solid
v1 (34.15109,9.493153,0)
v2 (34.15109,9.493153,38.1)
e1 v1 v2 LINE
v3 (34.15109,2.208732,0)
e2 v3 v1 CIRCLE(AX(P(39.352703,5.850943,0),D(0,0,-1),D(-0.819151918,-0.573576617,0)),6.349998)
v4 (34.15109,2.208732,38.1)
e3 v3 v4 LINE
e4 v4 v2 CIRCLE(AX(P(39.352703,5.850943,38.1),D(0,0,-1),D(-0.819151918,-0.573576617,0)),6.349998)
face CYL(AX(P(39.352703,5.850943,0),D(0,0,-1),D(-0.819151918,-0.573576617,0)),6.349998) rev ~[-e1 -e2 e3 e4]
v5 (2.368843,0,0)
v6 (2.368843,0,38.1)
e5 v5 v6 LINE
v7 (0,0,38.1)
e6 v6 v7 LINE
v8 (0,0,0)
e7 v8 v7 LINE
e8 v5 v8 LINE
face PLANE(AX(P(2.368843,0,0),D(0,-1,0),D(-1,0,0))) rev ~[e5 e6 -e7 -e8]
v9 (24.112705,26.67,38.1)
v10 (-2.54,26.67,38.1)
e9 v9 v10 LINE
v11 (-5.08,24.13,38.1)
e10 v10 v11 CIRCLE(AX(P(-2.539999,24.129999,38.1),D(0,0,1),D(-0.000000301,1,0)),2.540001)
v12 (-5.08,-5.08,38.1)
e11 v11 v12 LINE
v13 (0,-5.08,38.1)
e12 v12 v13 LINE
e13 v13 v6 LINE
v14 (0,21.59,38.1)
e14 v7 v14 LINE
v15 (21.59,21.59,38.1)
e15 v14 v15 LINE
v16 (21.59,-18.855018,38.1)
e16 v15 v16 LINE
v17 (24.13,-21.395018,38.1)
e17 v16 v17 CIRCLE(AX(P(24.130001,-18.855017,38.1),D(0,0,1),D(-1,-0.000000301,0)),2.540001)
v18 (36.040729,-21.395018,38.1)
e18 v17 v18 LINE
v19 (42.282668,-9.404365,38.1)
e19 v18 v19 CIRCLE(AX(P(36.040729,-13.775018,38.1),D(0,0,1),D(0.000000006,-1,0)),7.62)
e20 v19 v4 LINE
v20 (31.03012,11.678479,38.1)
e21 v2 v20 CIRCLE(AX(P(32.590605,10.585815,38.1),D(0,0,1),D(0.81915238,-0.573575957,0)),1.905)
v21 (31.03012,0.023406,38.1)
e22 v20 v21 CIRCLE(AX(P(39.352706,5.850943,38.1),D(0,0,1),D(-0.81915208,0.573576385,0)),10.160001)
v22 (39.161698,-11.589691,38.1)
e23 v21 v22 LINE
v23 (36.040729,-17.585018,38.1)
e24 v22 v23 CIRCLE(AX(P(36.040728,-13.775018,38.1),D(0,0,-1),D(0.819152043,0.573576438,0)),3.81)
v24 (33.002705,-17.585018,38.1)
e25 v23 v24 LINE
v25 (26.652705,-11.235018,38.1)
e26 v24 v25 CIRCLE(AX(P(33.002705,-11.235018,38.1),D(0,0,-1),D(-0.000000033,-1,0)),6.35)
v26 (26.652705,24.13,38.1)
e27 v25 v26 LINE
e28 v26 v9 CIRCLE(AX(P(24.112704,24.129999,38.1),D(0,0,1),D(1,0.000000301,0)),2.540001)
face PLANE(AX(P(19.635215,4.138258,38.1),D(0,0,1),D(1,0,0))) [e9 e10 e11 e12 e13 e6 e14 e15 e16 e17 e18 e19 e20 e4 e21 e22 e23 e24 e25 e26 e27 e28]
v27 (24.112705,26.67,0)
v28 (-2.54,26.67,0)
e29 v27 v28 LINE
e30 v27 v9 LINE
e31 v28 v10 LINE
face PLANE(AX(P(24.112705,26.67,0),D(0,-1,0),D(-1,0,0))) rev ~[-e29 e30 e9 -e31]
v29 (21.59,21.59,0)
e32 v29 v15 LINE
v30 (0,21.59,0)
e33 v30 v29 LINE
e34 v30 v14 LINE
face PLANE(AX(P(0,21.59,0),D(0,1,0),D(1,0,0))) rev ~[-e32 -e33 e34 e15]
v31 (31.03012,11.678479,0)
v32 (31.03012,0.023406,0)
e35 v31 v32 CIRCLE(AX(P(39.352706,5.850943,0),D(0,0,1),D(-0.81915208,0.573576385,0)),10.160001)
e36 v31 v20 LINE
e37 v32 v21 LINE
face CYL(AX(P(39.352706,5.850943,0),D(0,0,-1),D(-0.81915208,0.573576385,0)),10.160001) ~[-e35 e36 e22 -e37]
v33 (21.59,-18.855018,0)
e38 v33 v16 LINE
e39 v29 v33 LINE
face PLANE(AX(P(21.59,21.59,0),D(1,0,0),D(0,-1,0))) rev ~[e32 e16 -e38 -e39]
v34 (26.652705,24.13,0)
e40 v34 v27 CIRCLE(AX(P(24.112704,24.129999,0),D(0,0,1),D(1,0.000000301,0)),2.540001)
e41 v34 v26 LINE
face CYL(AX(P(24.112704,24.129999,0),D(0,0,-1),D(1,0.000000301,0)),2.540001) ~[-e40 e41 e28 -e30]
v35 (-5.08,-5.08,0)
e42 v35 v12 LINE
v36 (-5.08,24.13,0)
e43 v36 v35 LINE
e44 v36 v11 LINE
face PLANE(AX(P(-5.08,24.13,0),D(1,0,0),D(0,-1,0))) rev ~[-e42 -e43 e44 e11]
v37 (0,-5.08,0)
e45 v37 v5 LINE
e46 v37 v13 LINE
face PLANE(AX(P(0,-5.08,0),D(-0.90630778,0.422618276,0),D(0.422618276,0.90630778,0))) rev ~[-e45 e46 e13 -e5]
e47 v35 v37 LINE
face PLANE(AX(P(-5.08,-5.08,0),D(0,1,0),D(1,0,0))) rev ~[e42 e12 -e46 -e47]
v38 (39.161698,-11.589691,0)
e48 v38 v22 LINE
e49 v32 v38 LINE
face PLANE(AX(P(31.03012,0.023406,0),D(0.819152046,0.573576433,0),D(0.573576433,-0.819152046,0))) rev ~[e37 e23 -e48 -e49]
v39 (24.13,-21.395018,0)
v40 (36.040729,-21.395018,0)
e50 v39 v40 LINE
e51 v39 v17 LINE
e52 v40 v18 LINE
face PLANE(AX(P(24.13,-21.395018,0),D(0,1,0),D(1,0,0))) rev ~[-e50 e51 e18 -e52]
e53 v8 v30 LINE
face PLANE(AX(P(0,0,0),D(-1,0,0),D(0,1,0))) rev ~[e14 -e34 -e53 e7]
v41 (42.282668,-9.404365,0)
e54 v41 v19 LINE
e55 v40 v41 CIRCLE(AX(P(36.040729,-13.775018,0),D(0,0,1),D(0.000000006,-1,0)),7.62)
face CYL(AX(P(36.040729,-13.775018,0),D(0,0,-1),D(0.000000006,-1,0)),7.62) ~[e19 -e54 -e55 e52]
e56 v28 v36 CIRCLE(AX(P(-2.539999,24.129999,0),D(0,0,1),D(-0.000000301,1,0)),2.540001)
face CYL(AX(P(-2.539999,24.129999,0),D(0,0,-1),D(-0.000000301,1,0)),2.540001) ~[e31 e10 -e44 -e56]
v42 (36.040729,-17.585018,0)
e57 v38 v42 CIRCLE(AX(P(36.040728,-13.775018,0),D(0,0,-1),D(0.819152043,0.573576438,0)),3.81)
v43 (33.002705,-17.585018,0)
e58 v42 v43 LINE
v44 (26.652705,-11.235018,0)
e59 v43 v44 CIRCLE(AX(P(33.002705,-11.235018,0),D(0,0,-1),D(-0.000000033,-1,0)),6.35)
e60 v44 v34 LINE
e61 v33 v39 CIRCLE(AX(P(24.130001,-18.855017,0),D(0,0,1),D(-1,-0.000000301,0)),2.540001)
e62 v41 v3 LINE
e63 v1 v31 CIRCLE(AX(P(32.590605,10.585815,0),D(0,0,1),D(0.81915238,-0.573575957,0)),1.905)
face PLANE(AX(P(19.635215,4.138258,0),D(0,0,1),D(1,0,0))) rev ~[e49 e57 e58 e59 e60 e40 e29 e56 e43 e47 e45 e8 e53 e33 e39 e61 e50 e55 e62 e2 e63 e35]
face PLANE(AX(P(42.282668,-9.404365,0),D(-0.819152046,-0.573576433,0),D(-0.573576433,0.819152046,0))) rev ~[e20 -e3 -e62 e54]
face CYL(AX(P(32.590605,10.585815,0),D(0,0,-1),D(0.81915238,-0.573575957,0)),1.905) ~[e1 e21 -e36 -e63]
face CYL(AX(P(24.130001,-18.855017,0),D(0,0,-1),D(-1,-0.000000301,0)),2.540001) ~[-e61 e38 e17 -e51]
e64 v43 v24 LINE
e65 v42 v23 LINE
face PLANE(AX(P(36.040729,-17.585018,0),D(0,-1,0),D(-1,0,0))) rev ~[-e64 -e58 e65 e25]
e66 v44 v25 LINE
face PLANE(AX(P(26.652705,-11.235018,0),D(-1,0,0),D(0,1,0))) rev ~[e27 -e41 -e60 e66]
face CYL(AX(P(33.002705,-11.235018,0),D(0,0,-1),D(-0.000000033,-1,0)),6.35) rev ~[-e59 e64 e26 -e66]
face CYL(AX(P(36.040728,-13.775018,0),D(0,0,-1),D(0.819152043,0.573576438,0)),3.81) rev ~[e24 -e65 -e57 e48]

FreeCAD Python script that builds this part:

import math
import FreeCAD as App
import Part
import Sketcher

V = App.Vector
Q = App.Units.Quantity

doc = App.newDocument("Part")
body = doc.addObject("PartDesign::Body", "Body")

sketch1 = doc.addObject("Sketcher::SketchObject", "Sketch")
body.addObject(sketch1)
sketch1.AttachmentSupport = (doc.XY_Plane, [""])
sketch1.MapMode = "FlatFace"
sketch1.addGeometry([
    Part.LineSegment(V(2.4, 0, 0), V(0, 0, 0)),
    Part.LineSegment(V(0, 0, 0), V(0, 21.6, 0)),
    Part.LineSegment(V(0, 21.6, 0), V(21.6, 21.6, 0)),
    Part.LineSegment(V(21.6, 21.6, 0), V(21.6, -18.9, 0)),
    Part.ArcOfCircle(Part.Circle(V(24.1, -18.9, 0), V(0, 0, 1), 2.5), math.radians(-180), math.radians(-90)),
    Part.LineSegment(V(24.1, -21.4, 0), V(36, -21.4, 0)),
    Part.ArcOfCircle(Part.Circle(V(36, -13.8, 0), V(0, 0, 1), 7.6), math.radians(-90), math.radians(35)),
    Part.LineSegment(V(42.3, -9.4, 0), V(34.2, 2.2, 0)),
    Part.ArcOfCircle(Part.Circle(V(39.4, 5.9, 0), V(0, 0, 1), 6.3), math.radians(145), math.radians(215)),
    Part.ArcOfCircle(Part.Circle(V(32.6, 10.6, 0), V(0, 0, 1), 1.9), math.radians(-35), math.radians(145)),
    Part.ArcOfCircle(Part.Circle(V(39.4, 5.9, 0), V(0, 0, 1), 10.2), math.radians(145), math.radians(215)),
    Part.LineSegment(V(31, 0, 0), V(39.2, -11.6, 0)),
    Part.ArcOfCircle(Part.Circle(V(36, -13.8, 0), V(0, 0, 1), 3.8), math.radians(-90), math.radians(35)),
    Part.LineSegment(V(36, -17.6, 0), V(33, -17.6, 0)),
    Part.ArcOfCircle(Part.Circle(V(33, -11.2, 0), V(0, 0, 1), 6.4), math.radians(-180), math.radians(-90)),
    Part.LineSegment(V(26.7, -11.2, 0), V(26.7, 24.1, 0)),
    Part.ArcOfCircle(Part.Circle(V(24.1, 24.1, 0), V(0, 0, 1), 2.5), math.radians(0), math.radians(90)),
    Part.LineSegment(V(24.1, 26.7, 0), V(-2.5, 26.7, 0)),
    Part.ArcOfCircle(Part.Circle(V(-2.5, 24.1, 0), V(0, 0, 1), 2.5), math.radians(90), math.radians(180)),
    Part.LineSegment(V(-5.1, 24.1, 0), V(-5.1, -5.1, 0)),
    Part.LineSegment(V(-5.1, -5.1, 0), V(0, -5.1, 0)),
    Part.LineSegment(V(0, -5.1, 0), V(2.4, 0, 0)),
], False)
sketch1.addConstraint([
    Sketcher.Constraint("Coincident", 0, 2, 1, 1),
    Sketcher.Constraint("Coincident", 1, 2, 2, 1),
    Sketcher.Constraint("Coincident", 2, 2, 3, 1),
    Sketcher.Constraint("Tangent", 3, 2, 4, 1),
    Sketcher.Constraint("Tangent", 4, 2, 5, 1),
    Sketcher.Constraint("Tangent", 5, 2, 6, 1),
    Sketcher.Constraint("Tangent", 6, 2, 7, 1),
    Sketcher.Constraint("Tangent", 7, 2, 8, 2),
    Sketcher.Constraint("Tangent", 8, 1, 9, 1),
    Sketcher.Constraint("Tangent", 9, 2, 10, 1),
    Sketcher.Constraint("Tangent", 10, 2, 11, 1),
    Sketcher.Constraint("Tangent", 11, 2, 12, 2),
    Sketcher.Constraint("Tangent", 12, 1, 13, 1),
    Sketcher.Constraint("Tangent", 13, 2, 14, 2),
    Sketcher.Constraint("Tangent", 14, 1, 15, 1),
    Sketcher.Constraint("Tangent", 15, 2, 16, 1),
    Sketcher.Constraint("Tangent", 16, 2, 17, 1),
    Sketcher.Constraint("Tangent", 17, 2, 18, 1),
    Sketcher.Constraint("Tangent", 18, 2, 19, 1),
    Sketcher.Constraint("Coincident", 19, 2, 20, 1),
    Sketcher.Constraint("Coincident", 20, 2, 21, 1),
    Sketcher.Constraint("Coincident", 21, 2, 0, 1),
    Sketcher.Constraint("Horizontal", 0),
    Sketcher.Constraint("Vertical", 1),
    Sketcher.Constraint("Horizontal", 2),
    Sketcher.Constraint("Vertical", 3),
    Sketcher.Constraint("Horizontal", 5),
    Sketcher.Constraint("Horizontal", 13),
    Sketcher.Constraint("Vertical", 15),
    Sketcher.Constraint("Horizontal", 17),
    Sketcher.Constraint("Vertical", 19),
    Sketcher.Constraint("Horizontal", 20),
    Sketcher.Constraint("Coincident", 0, 2, -1, 1),
    Sketcher.Constraint("Coincident", 10, 3, 8, 3),
    Sketcher.Constraint("Coincident", 12, 3, 6, 3),
    Sketcher.Constraint("Equal", 8, 14),
    Sketcher.Constraint("Equal", 4, 16),
    Sketcher.Constraint("Equal", 16, 18),
    Sketcher.Constraint("PointOnObject", 20, 2, -2),
    Sketcher.Constraint("Parallel", 7, 11),
    Sketcher.Constraint("Vertical", 7, 2, 8, 1),
    Sketcher.Constraint("Equal", 2, 1),
    Sketcher.Constraint("Radius", 4, Q("0.1 in")),
    Sketcher.Constraint("Radius", 6, Q("0.3 in")),
    Sketcher.Constraint("Radius", 10, Q("0.4 in")),
    Sketcher.Constraint("Radius", 8, Q("0.2499999 in")),
    Sketcher.Constraint("DistanceX", 20, 1, 20, 2, Q("0.2 in")),
    Sketcher.Constraint("Angle", 7, Q("125 deg")),
    Sketcher.Constraint("Angle", 21, Q("64.999999 deg")),
    Sketcher.Constraint("DistanceX", 2, 1, 2, 2, Q("0.85 in")),
    Sketcher.Constraint("DistanceY", 19, 2, 19, 1, Q("1.15 in")),
    Sketcher.Constraint("DistanceY", 19, 2, -1, 1, Q("0.2 in")),
    Sketcher.Constraint("DistanceX", 16, 3, 8, 3, Q("0.6 in")),
    Sketcher.Constraint("DistanceX", 5, 1, 5, 2, Q("11.910729 mm")),
    Sketcher.Constraint("DistanceY", 3, 2, 3, 1, Q("40.445018 mm")),
    Sketcher.Constraint("DistanceX", 13, 2, 13, 1, Q("3.038024 mm")),
])
pad1 = doc.addObject("PartDesign::Pad", "Pad")
body.addObject(pad1)
pad1.Profile = sketch1
pad1.Length = Q("1.5 in")

doc.recompute()
